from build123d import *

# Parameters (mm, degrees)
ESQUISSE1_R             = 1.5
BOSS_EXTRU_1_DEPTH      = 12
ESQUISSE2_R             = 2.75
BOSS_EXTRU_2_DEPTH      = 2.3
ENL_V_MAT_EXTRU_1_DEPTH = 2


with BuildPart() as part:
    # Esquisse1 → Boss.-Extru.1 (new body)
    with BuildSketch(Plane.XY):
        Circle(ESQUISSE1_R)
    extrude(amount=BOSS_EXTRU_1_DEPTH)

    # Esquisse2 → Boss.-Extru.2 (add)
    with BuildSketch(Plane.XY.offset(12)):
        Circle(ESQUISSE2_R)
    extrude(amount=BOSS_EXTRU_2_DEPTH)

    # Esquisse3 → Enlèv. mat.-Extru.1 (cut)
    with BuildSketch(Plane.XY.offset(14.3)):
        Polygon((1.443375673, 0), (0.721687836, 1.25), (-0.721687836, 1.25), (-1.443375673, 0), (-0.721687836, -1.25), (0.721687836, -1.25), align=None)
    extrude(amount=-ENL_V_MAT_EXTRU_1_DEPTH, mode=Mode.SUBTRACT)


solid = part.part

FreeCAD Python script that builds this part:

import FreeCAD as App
import Part
import Sketcher
Q = App.Units.Quantity


def add_polygon(sketch, points):
    """Adds a closed chain of lines whose ends are joined by coincident constraints."""
    first, n = sketch.GeometryCount, len(points)
    for a, b in zip(points, points[1:] + points[:1]):
        sketch.addGeometry(Part.LineSegment(App.Vector(*a, 0), App.Vector(*b, 0)), False)
    for i in range(n):
        sketch.addConstraint(Sketcher.Constraint("Coincident", first + i, 2, first + (i + 1) % n, 1))

doc = App.newDocument("Part")
body = doc.addObject("PartDesign::Body", "Body")

# Sketch on XY plane
sketch1 = body.newObject("Sketcher::SketchObject", "Sketch")
sketch1.AttachmentSupport = (doc.getObject("XY_Plane"), [""])
sketch1.MapMode = "FlatFace"
sketch1.addGeometry(Part.Circle(App.Vector(0, 0, 0), App.Vector(0, 0, 1), 1.5), False)
sketch1.addConstraint(Sketcher.Constraint("Coincident", 0, 3, -1, 1))
sketch1.addConstraint(Sketcher.Constraint("Diameter", 0, 3.0))
pad1 = body.newObject("PartDesign::Pad", "Pad")
pad1.Profile = sketch1
pad1.Length = 12

# Sketch on XY plane
sketch2 = body.newObject("Sketcher::SketchObject", "Sketch001")
sketch2.AttachmentSupport = (doc.getObject("XY_Plane"), [""])
sketch2.MapMode = "FlatFace"
sketch2.AttachmentOffset = App.Placement(App.Vector(0, 0, 12), App.Rotation())
sketch2.addGeometry(Part.Circle(App.Vector(0, 0, 0), App.Vector(0, 0, 1), 2.8), False)
sketch2.addConstraint(Sketcher.Constraint("Coincident", 0, 3, -1, 1))
sketch2.addConstraint(Sketcher.Constraint("Diameter", 0, 5.5))
pad2 = body.newObject("PartDesign::Pad", "Pad001")
pad2.Profile = sketch2
pad2.Length = 2.3

# Sketch on XY plane
sketch3 = body.newObject("Sketcher::SketchObject", "Sketch002")
sketch3.AttachmentSupport = (doc.getObject("XY_Plane"), [""])
sketch3.MapMode = "FlatFace"
sketch3.AttachmentOffset = App.Placement(App.Vector(0, 0, 14.3), App.Rotation())
add_polygon(sketch3, [(1.4, 0), (0.7, 1.2), (-0.7, 1.2), (-1.4, 0), (-0.7, -1.2), (0.7, -1.2)])  # lines 0-5
sketch3.addConstraint(Sketcher.Constraint("Horizontal", 1))
sketch3.addConstraint(Sketcher.Constraint("Horizontal", 4))
sketch3.addConstraint(Sketcher.Constraint("Symmetric", 0, 2, 3, 2, -1, 1))
sketch3.addConstraint(Sketcher.Constraint("Symmetric", 2, 2, 5, 2, -1, 1))
sketch3.addConstraint(Sketcher.Constraint("PointOnObject", 2, 2, -1))
sketch3.addConstraint(Sketcher.Constraint("Parallel", 2, 5))
sketch3.addConstraint(Sketcher.Constraint("Vertical", 1, 2, 3, 2))
sketch3.addConstraint(Sketcher.Constraint("Angle", 0, Q("120 deg")))
sketch3.addConstraint(Sketcher.Constraint("DistanceY", 3, 2, 1, 2, 2.5))
sketch3.addConstraint(Sketcher.Constraint("DistanceX", 1, 2, 1, 1, 1.443376))
pocket1 = body.newObject("PartDesign::Pocket", "Pocket")
pocket1.Profile = sketch3
pocket1.Length = 2

doc.recompute()
